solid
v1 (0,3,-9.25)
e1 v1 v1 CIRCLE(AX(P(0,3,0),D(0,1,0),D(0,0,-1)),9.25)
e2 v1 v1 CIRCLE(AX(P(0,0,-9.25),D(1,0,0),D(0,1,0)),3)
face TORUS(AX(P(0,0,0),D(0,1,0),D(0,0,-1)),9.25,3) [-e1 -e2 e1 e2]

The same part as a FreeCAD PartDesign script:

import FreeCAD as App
import Part
import Sketcher

V = App.Vector

doc = App.newDocument("Part")
body = doc.addObject("PartDesign::Body", "Body")

sketch1 = body.newObject("Sketcher::SketchObject", "Sketch")
sketch1.AttachmentSupport = (doc.getObject("YZ_Plane"), [""])
sketch1.MapMode = "FlatFace"
sketch1.addGeometry(Part.Circle(V(0, -9.2, 0), V(0, 0, 1), 3), False)
sketch1.addConstraint([
    Sketcher.Constraint("PointOnObject", 0, 3, -2),
    Sketcher.Constraint("Diameter", 0, 6.0),
    Sketcher.Constraint("DistanceY", 0, 3, -1, 1, 9.25),
])
revolution = body.newObject("PartDesign::Revolution", "Revolution")
revolution.Profile = sketch1
revolution.ReferenceAxis = (sketch1, ["H_Axis"])
revolution.Angle = 360

doc.recompute()
